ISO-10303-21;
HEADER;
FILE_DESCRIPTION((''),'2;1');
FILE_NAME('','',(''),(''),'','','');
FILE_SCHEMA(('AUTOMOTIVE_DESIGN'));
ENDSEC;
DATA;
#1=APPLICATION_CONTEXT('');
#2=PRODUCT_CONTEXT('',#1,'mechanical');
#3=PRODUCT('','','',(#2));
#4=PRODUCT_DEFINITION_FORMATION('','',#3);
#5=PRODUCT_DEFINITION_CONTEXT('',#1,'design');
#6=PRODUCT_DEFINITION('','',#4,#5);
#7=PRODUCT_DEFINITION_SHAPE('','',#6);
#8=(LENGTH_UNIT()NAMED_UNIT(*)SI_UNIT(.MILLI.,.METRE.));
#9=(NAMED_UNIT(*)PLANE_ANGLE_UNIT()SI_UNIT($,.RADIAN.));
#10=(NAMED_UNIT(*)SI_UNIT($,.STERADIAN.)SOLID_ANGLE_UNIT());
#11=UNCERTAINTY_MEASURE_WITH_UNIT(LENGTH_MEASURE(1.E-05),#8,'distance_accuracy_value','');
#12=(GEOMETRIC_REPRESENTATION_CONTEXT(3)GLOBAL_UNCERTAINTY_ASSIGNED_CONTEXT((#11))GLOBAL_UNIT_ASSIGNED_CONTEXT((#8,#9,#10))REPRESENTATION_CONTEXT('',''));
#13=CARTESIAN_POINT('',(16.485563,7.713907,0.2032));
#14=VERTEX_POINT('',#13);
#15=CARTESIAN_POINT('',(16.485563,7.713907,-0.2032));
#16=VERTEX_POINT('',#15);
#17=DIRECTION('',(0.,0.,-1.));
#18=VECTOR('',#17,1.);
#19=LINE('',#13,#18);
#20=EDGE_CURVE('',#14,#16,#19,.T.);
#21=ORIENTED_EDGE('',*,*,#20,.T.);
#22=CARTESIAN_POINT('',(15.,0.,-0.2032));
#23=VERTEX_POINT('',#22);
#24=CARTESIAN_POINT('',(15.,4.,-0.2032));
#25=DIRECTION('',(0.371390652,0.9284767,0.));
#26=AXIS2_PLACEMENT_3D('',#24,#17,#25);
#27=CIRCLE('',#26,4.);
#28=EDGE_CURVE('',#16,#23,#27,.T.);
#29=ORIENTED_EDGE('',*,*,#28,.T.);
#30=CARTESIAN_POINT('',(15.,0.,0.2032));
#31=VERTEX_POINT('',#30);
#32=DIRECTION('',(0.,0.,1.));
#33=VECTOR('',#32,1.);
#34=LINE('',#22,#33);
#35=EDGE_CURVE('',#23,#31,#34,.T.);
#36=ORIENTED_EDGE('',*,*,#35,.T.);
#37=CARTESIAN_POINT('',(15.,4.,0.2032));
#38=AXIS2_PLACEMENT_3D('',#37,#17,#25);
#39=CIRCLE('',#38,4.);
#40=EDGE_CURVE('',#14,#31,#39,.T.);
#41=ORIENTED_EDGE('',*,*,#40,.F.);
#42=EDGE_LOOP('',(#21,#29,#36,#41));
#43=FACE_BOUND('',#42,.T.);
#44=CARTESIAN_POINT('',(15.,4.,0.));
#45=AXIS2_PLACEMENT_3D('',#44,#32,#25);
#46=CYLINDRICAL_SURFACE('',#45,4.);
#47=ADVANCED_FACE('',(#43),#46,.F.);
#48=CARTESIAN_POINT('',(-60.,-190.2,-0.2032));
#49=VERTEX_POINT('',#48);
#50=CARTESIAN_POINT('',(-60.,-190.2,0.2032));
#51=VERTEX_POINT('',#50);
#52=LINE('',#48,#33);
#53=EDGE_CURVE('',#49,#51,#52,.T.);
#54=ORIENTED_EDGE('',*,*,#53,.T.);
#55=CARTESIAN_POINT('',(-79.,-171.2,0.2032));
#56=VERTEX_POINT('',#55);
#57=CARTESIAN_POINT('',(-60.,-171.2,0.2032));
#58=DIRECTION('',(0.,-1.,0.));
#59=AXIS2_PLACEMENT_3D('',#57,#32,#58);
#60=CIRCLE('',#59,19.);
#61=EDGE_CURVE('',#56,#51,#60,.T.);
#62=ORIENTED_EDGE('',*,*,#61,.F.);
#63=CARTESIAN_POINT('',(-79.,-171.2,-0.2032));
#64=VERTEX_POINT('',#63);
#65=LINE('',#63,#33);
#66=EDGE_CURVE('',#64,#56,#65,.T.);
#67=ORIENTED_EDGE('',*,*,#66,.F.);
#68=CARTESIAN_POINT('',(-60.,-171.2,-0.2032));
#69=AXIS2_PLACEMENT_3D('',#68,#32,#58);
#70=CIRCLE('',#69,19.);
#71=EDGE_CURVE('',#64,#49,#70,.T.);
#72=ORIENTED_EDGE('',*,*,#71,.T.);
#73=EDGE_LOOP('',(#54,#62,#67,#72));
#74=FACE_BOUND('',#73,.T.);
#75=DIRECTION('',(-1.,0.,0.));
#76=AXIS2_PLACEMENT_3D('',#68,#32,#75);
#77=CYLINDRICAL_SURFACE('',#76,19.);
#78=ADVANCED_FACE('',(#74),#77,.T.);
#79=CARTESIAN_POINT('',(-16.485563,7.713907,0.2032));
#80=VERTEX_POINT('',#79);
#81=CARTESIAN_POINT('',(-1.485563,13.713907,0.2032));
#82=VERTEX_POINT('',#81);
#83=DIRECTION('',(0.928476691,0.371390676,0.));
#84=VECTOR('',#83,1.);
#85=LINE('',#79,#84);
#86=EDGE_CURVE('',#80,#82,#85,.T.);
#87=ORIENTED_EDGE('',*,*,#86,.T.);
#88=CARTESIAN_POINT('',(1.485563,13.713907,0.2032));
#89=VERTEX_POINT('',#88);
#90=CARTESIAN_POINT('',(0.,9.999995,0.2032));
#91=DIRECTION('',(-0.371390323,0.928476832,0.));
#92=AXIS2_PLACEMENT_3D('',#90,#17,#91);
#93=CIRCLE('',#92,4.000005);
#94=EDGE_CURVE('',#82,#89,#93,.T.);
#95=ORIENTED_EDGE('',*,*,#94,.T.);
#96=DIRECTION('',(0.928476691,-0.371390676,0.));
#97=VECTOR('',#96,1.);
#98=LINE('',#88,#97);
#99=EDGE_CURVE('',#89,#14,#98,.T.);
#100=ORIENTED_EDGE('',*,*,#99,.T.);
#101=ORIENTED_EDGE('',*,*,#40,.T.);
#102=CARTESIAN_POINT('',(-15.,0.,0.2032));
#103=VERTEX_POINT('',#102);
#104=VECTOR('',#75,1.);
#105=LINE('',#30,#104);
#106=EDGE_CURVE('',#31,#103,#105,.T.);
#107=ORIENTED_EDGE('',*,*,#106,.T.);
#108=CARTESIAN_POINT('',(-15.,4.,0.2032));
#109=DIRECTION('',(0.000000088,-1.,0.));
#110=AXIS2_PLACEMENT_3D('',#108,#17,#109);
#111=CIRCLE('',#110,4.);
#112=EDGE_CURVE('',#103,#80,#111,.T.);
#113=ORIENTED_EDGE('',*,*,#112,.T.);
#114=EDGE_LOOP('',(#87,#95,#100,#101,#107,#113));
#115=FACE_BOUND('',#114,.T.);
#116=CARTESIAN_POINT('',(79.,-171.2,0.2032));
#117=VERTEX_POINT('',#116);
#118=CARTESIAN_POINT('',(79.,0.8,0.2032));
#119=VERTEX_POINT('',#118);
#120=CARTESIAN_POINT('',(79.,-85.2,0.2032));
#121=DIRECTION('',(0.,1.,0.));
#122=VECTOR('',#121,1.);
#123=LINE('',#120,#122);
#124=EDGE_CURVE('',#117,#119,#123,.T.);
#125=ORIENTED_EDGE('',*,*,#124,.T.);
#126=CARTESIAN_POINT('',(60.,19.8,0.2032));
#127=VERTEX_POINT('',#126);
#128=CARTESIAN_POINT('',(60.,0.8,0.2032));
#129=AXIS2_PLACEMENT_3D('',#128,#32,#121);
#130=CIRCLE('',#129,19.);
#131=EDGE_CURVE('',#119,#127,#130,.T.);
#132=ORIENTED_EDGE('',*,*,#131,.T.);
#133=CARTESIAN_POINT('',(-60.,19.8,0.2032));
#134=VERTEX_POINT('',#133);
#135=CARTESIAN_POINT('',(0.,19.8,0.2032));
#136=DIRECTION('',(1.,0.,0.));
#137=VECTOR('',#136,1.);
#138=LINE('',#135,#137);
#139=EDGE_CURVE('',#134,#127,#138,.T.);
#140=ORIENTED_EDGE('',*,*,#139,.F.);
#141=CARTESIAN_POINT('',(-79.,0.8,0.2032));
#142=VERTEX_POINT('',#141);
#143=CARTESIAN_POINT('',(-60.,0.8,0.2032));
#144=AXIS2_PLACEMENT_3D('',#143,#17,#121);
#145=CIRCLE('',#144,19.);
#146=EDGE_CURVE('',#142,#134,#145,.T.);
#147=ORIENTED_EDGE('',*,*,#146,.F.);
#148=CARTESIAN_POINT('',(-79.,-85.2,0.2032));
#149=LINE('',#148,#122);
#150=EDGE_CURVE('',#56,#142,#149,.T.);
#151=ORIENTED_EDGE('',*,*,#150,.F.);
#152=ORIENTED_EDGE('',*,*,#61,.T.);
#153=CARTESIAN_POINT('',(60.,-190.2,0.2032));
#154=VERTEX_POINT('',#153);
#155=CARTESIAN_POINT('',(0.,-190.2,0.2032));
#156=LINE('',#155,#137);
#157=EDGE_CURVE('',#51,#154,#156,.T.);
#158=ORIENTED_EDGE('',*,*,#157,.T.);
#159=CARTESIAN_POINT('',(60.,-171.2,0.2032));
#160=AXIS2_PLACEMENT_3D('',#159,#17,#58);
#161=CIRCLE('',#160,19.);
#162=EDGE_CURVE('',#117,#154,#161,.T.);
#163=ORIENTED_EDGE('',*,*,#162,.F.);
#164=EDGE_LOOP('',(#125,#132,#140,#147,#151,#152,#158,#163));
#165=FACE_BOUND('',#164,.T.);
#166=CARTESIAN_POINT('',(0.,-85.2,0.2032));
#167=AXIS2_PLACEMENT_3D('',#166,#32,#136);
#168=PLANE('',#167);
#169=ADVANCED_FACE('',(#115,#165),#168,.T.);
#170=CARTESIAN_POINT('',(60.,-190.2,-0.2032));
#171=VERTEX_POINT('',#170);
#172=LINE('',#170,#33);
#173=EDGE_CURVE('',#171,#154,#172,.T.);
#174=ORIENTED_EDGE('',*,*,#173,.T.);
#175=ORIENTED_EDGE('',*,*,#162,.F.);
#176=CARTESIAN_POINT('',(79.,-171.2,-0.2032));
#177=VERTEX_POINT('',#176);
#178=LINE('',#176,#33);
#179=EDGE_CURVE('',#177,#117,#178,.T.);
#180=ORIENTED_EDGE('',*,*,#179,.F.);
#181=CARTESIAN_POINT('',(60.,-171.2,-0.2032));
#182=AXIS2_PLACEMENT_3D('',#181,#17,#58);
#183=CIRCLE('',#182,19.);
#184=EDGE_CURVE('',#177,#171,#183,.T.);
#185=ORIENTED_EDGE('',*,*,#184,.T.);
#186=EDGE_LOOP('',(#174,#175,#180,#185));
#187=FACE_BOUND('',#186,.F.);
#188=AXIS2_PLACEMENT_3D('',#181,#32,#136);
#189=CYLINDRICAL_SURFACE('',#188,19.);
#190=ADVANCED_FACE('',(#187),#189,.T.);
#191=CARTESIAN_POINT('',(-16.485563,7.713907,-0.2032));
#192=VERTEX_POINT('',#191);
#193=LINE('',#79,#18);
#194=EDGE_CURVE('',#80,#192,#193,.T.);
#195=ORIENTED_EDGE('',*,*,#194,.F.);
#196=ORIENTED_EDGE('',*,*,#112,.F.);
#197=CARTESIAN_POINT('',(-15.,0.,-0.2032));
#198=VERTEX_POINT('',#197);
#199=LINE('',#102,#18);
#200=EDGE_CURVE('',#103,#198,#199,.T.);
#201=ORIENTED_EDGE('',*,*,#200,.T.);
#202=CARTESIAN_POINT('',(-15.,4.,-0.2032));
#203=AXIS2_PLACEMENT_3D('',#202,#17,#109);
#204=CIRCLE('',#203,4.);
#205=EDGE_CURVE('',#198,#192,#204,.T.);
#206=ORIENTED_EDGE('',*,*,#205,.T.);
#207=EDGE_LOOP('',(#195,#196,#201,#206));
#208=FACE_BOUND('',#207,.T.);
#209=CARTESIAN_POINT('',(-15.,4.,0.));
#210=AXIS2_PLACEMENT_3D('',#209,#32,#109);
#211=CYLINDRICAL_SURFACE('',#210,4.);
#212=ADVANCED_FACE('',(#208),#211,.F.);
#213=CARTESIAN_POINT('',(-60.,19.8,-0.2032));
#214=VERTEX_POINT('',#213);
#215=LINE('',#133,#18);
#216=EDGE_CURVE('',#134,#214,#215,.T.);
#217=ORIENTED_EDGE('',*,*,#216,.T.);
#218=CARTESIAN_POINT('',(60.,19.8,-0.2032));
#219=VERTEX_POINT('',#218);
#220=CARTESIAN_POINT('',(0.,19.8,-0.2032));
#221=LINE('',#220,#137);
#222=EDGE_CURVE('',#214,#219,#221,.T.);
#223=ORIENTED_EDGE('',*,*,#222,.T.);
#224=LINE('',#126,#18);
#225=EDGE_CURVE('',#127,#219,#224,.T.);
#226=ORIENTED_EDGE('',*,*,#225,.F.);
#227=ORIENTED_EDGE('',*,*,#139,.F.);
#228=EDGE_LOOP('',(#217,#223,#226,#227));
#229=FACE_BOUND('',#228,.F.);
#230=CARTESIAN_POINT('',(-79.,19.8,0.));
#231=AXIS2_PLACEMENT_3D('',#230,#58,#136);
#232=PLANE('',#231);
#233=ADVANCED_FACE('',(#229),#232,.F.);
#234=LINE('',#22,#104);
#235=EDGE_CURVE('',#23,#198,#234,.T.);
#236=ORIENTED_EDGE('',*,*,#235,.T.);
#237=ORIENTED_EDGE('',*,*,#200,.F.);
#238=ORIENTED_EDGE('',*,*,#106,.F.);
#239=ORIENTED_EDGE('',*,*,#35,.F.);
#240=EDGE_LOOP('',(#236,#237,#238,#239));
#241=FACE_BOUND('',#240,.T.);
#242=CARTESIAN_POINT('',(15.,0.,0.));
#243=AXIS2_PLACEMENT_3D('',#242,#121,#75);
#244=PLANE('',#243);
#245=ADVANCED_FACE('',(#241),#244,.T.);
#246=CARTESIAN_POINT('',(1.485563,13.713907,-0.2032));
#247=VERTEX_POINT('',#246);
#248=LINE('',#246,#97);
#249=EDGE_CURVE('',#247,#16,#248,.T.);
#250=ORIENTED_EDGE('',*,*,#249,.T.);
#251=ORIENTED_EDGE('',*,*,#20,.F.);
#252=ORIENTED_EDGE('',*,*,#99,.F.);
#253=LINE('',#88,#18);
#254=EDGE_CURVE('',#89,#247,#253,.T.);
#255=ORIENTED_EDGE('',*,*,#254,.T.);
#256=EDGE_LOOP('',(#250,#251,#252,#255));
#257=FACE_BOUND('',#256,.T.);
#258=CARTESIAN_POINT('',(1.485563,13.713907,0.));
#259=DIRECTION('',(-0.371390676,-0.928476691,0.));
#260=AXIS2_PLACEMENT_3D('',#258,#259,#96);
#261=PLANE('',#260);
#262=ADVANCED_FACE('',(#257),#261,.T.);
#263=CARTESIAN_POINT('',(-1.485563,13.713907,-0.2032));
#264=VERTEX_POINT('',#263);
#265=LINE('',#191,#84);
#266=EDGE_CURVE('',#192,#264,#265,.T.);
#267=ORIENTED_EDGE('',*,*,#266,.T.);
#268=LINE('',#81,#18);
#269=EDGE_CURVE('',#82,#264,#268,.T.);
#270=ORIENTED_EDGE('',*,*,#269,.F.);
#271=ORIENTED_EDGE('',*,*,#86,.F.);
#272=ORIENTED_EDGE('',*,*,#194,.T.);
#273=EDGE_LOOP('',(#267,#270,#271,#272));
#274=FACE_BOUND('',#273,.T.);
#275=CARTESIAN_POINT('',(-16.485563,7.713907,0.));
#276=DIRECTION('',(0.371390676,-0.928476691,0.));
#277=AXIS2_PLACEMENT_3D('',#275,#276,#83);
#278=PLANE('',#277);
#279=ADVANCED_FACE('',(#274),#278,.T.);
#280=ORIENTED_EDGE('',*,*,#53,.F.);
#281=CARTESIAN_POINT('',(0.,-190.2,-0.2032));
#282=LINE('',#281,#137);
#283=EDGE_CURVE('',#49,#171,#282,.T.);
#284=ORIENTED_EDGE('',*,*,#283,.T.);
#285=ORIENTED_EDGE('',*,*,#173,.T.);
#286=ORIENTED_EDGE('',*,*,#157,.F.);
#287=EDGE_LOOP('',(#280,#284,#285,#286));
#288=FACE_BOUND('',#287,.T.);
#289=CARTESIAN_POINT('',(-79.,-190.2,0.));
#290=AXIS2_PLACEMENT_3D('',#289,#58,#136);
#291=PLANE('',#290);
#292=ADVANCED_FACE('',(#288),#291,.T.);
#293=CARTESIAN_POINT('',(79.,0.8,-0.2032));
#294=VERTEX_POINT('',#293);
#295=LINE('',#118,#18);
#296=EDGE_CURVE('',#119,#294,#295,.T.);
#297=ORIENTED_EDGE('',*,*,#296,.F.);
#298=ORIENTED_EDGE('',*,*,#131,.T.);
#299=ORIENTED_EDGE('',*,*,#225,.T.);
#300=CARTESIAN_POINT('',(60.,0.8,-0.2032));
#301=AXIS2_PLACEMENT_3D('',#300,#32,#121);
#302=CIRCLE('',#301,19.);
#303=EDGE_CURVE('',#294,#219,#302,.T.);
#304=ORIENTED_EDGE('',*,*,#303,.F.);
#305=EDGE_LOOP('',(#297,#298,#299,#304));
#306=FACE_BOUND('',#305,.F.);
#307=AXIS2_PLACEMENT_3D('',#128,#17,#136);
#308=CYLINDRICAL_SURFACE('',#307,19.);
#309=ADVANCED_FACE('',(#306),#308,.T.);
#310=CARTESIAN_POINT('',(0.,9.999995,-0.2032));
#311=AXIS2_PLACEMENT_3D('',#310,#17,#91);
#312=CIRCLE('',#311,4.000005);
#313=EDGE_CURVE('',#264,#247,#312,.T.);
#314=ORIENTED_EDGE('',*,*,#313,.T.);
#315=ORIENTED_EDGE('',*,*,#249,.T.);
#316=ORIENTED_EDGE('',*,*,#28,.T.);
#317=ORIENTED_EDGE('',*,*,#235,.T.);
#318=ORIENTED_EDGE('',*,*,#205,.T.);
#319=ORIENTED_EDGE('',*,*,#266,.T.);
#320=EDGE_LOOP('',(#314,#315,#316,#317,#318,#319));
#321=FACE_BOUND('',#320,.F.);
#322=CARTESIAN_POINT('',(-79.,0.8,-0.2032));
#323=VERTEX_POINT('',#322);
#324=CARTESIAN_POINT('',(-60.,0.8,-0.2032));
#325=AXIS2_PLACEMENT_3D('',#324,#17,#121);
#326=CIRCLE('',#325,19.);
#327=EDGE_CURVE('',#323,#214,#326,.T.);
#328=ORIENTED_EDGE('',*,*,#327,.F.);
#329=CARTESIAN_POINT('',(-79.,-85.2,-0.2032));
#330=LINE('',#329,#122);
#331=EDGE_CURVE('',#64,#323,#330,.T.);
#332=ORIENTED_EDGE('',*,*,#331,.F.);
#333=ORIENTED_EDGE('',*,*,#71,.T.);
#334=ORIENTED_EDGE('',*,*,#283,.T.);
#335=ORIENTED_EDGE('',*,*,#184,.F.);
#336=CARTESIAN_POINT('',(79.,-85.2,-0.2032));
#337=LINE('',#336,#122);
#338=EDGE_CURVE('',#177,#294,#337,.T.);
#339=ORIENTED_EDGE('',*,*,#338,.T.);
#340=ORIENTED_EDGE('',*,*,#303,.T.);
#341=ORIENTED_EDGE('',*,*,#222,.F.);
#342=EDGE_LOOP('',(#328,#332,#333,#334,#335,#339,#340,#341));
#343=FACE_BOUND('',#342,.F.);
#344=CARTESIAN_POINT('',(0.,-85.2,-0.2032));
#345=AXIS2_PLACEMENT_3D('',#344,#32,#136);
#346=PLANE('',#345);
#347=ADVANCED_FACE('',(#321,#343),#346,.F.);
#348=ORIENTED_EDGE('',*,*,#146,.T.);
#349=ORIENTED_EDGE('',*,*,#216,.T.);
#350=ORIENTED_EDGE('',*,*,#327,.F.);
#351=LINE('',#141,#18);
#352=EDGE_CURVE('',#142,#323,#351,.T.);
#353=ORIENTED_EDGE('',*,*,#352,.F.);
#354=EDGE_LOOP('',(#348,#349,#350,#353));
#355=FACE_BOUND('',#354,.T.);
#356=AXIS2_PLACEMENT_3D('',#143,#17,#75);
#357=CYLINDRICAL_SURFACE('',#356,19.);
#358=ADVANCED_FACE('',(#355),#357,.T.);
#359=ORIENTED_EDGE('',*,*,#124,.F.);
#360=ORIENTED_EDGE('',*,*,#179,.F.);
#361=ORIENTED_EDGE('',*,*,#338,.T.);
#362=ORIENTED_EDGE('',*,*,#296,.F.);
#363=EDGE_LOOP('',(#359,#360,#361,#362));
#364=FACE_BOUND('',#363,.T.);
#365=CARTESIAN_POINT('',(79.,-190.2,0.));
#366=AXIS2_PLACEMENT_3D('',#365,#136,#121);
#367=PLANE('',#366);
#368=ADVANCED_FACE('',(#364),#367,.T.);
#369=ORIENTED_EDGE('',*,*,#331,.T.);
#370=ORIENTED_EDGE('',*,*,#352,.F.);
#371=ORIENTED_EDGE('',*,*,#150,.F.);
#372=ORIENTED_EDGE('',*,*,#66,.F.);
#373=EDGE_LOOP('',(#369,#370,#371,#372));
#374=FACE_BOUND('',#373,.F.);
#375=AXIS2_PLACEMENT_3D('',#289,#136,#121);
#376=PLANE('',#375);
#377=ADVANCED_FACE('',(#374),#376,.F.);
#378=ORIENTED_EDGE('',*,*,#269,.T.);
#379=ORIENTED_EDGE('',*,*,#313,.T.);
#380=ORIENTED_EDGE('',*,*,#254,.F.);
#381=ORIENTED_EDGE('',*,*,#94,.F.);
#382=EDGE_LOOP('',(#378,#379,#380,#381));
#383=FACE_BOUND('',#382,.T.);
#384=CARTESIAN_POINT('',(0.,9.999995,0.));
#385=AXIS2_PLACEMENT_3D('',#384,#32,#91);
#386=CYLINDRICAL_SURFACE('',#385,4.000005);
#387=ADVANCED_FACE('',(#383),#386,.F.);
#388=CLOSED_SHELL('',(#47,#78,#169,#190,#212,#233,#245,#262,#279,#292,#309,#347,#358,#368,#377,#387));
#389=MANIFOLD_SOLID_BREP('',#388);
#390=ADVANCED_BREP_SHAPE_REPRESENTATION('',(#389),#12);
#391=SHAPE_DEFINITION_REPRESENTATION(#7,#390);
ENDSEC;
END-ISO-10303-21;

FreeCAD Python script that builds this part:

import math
import FreeCAD as App
import Part
import Sketcher

V = App.Vector
Q = App.Units.Quantity


def edges_at(feature, points):
    """Names of the edges that pass closest to the given points."""
    edges = feature.Shape.Edges
    near = lambda p: min(range(len(edges)), key=lambda i: edges[i].distToShape(Part.Vertex(*p))[0])
    return sorted({f"Edge{near(p) + 1}" for p in points})


def add_polygon(sketch, points):
    """Adds a closed chain of lines whose ends are joined by coincident constraints."""
    first, n = sketch.GeometryCount, len(points)
    for a, b in zip(points, points[1:] + points[:1]):
        sketch.addGeometry(Part.LineSegment(App.Vector(*a, 0), App.Vector(*b, 0)), False)
    for i in range(n):
        sketch.addConstraint(Sketcher.Constraint("Coincident", first + i, 2, first + (i + 1) % n, 1))

doc = App.newDocument("Part")
params = doc.addObject("Spreadsheet::Sheet", "Params")
for row, (alias, value) in enumerate([
    ("sketch1_radius", "4 mm"),
    ("sketch1_width", "158 mm"),
    ("sketch1_width2", "30 mm"),
    ("sketch1_height", "210 mm"),
    ("pad1_length", "0.4064 mm"),
    ("fillet_radius", "19 mm"),
], start=1):
    params.set(f"A{row}", alias)
    params.set(f"B{row}", "=" + value)
    params.setAlias(f"B{row}", alias)

body = doc.addObject("PartDesign::Body", "Body")

sketch1 = doc.addObject("Sketcher::SketchObject", "Sketch")
body.addObject(sketch1)
sketch1.AttachmentSupport = (doc.XY_Plane, [""])
sketch1.MapMode = "FlatFace"
add_polygon(sketch1, [(-79, 19.8), (-79, -190.2), (79, -190.2), (79, 19.8)])
sketch1.addGeometry(Part.ArcOfCircle(Part.Circle(V(15, 4, 0), V(0, 0, 1), 4), math.radians(-90.000005), math.radians(68.198592)), False)
sketch1.addGeometry(Part.LineSegment(V(15, 0, 0), V(-15, 0, 0)), False)
sketch1.addGeometry(Part.ArcOfCircle(Part.Circle(V(-15, 4, 0), V(0, 0, 1), 4), math.radians(111.801408), math.radians(270.000005)), False)
sketch1.addGeometry(Part.LineSegment(V(-16.485563, 7.713907, 0), V(-1.485563, 13.713907, 0)), False)
sketch1.addGeometry(Part.ArcOfCircle(Part.Circle(V(0, 9.999995, 0), V(0, 0, 1), 4.000005), math.radians(68.198612), math.radians(111.801388)), False)
sketch1.addGeometry(Part.LineSegment(V(1.485563, 13.713907, 0), V(16.485563, 7.713907, 0)), False)
sketch1.addConstraint([
    Sketcher.Constraint("Tangent", 4, 1, 5, 1),
    Sketcher.Constraint("Tangent", 5, 2, 6, 2),
    Sketcher.Constraint("Tangent", 6, 1, 7, 1),
    Sketcher.Constraint("Tangent", 7, 2, 8, 2),
    Sketcher.Constraint("Tangent", 8, 1, 9, 1),
    Sketcher.Constraint("Tangent", 9, 2, 4, 2),
    Sketcher.Constraint("Vertical", 0),
    Sketcher.Constraint("Horizontal", 1),
    Sketcher.Constraint("Vertical", 2),
    Sketcher.Constraint("Horizontal", 3),
    Sketcher.Constraint("Horizontal", 5),
    Sketcher.Constraint("Equal", 4, 6),
    Sketcher.Constraint("Symmetric", 4, 1, 5, 2, -1, 1),
    Sketcher.Constraint("PointOnObject", 8, 3, -2),
    Sketcher.Constraint("Radius", 4, Q("4 mm")),
    Sketcher.Constraint("DistanceX", 1, 1, 1, 2, Q("158 mm")),
    Sketcher.Constraint("DistanceX", 5, 2, 5, 1, Q("30 mm")),
    Sketcher.Constraint("DistanceY", 0, 2, 0, 1, Q("210 mm")),
    Sketcher.Constraint("DistanceX", 0, 2, -1, 1, Q("79 mm")),
    Sketcher.Constraint("DistanceX", 6, 1, 7, 2, Q("15 mm")),
    Sketcher.Constraint("DistanceY", 6, 1, 7, 2, Q("6 mm")),
    Sketcher.Constraint("DistanceY", 0, 2, -1, 1, Q("190.2 mm")),
])
sketch1.setExpression("Constraints[18]", "Params.sketch1_radius")
sketch1.setExpression("Constraints[19]", "Params.sketch1_width")
sketch1.setExpression("Constraints[20]", "Params.sketch1_width2")
sketch1.setExpression("Constraints[21]", "Params.sketch1_height")
pad1 = doc.addObject("PartDesign::Pad", "Pad")
body.addObject(pad1)
pad1.Profile = sketch1
pad1.setExpression("Length", "Params.pad1_length")
pad1.Midplane = True
doc.recompute()

fillet = doc.addObject("PartDesign::Fillet", "Fillet")
body.addObject(fillet)
fillet.Base = (pad1, edges_at(pad1, [
    (79, 19.8, 0),
    (-79, 19.8, 0),
    (79, -190.2, 0),
    (-79, -190.2, 0),
]))
fillet.setExpression("Radius", "Params.fillet_radius")

doc.recompute()
